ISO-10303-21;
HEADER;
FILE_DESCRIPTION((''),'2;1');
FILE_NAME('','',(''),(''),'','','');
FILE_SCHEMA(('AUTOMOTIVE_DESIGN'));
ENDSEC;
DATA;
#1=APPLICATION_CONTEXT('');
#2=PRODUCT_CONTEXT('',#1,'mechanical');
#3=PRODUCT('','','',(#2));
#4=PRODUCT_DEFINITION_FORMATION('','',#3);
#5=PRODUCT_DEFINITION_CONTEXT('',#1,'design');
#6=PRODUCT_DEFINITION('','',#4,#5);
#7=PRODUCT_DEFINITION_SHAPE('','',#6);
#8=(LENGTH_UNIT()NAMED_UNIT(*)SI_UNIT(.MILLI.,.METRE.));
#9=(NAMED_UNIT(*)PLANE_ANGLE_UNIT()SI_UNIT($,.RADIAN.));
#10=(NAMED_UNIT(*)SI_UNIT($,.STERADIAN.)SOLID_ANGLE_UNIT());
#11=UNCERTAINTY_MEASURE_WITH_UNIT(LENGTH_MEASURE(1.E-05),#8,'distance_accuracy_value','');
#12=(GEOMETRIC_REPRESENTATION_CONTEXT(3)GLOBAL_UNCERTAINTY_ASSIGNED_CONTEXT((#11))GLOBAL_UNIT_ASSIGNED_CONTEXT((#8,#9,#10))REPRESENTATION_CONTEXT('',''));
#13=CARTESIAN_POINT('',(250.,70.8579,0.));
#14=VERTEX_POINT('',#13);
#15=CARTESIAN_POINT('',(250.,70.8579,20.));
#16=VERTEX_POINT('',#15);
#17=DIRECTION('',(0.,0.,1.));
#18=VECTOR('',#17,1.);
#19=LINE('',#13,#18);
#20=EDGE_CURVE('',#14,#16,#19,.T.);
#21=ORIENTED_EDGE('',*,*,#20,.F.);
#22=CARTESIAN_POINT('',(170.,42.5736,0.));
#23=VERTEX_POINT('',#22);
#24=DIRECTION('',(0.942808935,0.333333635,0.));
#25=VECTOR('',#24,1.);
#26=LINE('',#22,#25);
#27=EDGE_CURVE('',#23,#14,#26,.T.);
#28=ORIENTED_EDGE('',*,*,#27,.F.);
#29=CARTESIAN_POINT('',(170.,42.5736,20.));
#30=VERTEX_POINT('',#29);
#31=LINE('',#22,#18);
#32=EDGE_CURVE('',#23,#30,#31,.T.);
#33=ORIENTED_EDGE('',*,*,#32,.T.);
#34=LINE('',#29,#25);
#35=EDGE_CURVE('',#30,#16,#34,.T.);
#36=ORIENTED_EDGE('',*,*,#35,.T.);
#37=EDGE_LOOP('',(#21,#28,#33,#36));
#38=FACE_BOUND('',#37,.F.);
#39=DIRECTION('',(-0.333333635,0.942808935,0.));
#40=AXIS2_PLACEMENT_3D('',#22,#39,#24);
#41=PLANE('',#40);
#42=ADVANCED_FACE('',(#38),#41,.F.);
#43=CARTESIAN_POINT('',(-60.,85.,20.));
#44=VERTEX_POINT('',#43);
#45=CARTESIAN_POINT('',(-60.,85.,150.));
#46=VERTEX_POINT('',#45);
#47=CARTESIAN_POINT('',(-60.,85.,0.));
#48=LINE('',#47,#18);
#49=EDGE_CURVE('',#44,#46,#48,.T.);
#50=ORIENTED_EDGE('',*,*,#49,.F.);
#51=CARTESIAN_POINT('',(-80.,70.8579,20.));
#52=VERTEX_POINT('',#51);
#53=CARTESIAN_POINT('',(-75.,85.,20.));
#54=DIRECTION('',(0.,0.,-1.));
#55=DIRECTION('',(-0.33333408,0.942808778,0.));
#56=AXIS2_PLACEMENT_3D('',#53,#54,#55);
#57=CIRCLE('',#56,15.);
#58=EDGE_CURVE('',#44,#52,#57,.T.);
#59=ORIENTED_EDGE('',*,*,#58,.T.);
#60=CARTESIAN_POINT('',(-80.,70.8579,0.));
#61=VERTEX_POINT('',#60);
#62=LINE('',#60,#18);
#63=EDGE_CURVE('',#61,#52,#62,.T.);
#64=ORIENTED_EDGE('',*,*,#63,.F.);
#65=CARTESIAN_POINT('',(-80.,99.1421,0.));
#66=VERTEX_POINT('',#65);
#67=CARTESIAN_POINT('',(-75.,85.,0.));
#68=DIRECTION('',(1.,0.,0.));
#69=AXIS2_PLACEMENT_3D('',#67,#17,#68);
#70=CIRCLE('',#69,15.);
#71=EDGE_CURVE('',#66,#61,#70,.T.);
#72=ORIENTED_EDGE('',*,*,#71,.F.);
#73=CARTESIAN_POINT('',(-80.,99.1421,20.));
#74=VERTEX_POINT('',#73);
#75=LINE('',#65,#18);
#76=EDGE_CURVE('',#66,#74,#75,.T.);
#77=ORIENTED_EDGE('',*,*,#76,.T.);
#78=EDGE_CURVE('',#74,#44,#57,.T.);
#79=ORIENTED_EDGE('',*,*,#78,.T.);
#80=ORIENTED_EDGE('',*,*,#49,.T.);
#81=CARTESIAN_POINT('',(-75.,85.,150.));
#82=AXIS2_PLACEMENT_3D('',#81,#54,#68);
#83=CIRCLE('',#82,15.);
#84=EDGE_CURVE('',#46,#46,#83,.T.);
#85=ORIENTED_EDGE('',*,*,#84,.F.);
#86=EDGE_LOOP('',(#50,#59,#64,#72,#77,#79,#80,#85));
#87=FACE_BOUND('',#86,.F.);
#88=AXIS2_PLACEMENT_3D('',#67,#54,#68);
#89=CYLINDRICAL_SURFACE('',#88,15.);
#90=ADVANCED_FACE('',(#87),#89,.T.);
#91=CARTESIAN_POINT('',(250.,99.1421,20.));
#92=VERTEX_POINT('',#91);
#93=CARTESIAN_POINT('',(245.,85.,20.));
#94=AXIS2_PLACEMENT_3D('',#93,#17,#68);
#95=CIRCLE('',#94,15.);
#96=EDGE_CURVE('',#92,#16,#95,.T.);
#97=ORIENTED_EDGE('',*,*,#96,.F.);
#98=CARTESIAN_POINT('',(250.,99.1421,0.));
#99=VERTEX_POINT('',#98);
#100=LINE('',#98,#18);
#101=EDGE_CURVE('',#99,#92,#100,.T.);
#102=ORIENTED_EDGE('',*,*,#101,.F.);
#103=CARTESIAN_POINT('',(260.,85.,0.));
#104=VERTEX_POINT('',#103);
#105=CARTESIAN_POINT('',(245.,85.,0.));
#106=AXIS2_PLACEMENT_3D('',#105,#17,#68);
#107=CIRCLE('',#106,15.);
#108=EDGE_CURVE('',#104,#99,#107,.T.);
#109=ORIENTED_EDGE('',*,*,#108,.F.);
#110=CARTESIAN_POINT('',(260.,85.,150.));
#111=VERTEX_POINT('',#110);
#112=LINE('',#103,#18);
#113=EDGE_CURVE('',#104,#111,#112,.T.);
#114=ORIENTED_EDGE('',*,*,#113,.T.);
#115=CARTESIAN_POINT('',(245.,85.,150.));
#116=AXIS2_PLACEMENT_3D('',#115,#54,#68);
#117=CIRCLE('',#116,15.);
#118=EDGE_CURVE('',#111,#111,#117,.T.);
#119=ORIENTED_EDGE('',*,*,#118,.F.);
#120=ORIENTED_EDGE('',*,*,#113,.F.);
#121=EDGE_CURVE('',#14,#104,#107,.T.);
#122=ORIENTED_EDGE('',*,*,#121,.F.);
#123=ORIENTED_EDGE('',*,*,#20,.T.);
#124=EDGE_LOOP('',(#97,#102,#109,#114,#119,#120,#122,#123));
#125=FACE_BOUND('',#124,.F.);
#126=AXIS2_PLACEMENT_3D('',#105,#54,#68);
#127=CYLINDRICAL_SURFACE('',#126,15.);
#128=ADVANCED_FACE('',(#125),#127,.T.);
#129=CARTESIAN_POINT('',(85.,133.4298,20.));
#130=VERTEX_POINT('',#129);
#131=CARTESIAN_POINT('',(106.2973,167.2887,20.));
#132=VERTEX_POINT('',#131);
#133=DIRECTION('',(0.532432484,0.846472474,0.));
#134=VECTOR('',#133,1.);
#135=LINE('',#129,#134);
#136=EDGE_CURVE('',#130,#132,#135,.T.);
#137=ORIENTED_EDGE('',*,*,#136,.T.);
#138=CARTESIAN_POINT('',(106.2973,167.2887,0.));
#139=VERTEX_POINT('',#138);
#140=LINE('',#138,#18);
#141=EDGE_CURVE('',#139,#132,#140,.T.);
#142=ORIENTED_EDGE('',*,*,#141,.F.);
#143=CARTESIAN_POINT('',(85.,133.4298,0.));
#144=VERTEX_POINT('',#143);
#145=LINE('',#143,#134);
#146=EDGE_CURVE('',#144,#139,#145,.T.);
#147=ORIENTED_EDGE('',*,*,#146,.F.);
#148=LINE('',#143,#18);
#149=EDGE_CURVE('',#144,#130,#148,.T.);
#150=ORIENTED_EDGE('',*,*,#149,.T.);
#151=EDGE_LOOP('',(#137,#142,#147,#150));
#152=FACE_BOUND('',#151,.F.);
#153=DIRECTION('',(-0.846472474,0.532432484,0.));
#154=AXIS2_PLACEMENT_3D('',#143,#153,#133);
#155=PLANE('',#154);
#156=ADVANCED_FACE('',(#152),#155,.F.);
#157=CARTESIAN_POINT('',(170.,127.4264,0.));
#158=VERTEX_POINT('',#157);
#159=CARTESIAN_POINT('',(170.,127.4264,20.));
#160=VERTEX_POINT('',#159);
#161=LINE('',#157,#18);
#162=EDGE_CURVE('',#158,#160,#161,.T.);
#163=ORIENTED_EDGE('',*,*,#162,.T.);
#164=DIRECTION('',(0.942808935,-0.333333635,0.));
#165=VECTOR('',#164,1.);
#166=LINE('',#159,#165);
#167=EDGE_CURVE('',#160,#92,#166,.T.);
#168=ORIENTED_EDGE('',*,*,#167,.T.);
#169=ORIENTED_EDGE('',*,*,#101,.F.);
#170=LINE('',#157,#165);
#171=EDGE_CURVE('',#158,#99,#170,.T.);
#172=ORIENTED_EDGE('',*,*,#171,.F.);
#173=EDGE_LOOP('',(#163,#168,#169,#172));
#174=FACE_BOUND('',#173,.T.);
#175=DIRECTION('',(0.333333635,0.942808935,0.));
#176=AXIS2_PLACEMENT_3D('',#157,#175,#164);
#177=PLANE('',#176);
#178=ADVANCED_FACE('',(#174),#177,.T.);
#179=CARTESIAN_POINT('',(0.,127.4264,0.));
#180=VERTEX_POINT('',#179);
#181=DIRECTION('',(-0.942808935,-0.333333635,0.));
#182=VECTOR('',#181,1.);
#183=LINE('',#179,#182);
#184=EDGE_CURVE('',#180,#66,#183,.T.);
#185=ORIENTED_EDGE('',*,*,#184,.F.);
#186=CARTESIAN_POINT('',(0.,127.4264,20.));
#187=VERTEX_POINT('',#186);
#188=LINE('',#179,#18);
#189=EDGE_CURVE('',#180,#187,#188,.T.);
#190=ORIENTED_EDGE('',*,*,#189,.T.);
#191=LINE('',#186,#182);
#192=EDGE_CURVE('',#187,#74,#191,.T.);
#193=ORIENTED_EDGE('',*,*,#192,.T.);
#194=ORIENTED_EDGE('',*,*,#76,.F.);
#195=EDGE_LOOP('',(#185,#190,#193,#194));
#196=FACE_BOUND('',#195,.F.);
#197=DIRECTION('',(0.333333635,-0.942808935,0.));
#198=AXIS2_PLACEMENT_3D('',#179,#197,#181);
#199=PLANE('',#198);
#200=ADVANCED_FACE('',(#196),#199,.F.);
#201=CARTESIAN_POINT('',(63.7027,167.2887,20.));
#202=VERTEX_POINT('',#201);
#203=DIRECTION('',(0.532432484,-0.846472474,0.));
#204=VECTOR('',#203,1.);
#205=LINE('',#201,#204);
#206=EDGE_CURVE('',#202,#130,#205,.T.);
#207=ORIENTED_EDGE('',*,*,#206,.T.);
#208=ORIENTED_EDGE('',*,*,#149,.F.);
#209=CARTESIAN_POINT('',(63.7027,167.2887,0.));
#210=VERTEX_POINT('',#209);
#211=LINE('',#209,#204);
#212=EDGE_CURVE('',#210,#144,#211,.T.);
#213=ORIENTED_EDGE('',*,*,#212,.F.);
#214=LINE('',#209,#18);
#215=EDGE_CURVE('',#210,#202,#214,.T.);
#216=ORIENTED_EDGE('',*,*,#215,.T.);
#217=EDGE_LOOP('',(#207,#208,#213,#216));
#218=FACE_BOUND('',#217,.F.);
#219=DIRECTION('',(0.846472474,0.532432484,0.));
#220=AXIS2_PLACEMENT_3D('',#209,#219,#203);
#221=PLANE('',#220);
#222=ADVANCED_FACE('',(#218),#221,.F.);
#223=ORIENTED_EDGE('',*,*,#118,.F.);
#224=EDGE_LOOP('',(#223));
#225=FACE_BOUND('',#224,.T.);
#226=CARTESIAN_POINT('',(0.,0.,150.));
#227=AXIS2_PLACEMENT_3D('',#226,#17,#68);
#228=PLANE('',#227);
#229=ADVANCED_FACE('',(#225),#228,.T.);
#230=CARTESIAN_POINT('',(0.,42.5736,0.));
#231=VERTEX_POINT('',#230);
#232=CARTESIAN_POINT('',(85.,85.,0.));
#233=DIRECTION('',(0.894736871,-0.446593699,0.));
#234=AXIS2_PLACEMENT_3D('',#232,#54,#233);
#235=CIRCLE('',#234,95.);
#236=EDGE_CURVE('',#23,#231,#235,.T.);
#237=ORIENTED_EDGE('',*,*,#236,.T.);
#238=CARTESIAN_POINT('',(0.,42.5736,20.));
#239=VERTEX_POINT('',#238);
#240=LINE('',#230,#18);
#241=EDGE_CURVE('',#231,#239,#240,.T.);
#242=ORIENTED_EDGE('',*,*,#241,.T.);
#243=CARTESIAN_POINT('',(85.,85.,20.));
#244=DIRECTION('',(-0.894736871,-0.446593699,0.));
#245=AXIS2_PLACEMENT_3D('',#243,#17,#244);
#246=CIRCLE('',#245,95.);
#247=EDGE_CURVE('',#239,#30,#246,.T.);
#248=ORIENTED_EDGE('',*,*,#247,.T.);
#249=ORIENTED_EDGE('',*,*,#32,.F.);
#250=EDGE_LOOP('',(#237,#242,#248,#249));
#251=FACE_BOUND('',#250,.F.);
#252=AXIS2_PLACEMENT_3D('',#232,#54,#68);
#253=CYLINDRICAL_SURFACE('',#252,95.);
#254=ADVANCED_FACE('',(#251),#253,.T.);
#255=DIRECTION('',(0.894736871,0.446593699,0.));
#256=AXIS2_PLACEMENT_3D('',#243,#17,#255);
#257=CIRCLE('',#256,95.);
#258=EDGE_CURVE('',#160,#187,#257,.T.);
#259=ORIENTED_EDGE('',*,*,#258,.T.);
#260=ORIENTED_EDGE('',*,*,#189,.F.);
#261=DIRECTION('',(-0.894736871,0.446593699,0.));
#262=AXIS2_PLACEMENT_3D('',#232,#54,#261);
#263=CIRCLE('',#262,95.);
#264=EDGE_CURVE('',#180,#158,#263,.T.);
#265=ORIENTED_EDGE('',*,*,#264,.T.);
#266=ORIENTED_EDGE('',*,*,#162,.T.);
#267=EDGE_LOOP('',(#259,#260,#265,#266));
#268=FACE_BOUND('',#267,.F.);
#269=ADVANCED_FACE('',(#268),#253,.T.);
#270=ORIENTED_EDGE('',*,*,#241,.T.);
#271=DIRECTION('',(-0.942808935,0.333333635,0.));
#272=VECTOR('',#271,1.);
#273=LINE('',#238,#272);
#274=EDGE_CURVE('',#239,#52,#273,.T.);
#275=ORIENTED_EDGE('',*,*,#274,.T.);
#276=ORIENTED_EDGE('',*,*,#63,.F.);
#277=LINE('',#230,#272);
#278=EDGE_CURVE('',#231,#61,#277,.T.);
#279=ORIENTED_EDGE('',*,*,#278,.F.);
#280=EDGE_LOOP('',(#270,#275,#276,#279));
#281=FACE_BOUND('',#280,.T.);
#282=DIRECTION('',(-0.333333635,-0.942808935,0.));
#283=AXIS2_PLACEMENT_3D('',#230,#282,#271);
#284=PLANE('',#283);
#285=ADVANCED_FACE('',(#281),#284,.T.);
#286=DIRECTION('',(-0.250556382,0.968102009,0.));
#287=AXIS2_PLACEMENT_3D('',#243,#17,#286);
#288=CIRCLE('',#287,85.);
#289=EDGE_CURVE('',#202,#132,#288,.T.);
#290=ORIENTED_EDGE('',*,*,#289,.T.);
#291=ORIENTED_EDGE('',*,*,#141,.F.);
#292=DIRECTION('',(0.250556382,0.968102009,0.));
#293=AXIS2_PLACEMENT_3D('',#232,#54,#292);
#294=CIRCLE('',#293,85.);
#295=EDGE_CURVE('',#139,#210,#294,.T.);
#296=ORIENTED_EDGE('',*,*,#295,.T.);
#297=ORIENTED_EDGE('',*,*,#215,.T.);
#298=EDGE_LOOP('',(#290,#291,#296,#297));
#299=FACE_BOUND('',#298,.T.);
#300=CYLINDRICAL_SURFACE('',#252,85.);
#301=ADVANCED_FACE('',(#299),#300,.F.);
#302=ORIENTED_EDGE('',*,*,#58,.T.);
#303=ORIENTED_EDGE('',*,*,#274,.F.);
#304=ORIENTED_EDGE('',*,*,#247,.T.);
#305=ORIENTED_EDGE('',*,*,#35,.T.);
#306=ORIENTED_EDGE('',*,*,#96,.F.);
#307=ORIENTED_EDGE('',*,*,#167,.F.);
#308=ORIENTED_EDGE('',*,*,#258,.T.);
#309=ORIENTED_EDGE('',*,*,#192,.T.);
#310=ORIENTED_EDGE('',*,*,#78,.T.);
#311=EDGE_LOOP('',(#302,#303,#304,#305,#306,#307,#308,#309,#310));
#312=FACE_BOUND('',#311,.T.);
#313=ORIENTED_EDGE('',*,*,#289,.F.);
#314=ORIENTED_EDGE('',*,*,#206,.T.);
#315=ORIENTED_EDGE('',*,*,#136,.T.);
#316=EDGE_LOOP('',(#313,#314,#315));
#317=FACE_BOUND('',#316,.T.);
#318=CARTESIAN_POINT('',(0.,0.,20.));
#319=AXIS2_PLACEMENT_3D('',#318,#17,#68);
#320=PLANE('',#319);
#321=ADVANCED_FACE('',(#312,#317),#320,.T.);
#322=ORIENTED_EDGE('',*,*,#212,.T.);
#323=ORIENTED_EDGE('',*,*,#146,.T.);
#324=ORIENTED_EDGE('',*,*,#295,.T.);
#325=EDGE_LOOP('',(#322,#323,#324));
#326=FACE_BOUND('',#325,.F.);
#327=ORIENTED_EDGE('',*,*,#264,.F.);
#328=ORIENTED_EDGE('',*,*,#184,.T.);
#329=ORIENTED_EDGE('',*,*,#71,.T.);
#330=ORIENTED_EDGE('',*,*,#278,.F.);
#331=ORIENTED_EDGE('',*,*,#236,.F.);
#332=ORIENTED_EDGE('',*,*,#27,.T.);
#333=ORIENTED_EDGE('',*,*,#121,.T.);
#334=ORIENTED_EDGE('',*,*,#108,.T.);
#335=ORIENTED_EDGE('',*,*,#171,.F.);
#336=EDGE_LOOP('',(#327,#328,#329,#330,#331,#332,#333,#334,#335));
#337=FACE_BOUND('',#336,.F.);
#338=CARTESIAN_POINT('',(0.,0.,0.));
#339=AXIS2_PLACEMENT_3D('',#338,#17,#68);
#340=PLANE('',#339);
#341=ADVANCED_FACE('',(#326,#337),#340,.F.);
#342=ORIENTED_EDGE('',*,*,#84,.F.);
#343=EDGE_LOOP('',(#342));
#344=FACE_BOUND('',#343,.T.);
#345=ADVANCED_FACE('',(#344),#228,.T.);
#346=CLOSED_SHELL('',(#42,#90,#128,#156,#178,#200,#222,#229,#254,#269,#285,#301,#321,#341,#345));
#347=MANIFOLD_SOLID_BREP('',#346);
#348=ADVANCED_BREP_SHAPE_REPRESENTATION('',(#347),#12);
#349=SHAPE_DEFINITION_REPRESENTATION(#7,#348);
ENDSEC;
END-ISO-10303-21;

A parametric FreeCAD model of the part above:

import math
import FreeCAD as App
import Part
import Sketcher
from FreeCAD import Vector
Q = App.Units.Quantity

doc = App.newDocument("Part")
body = doc.addObject("PartDesign::Body", "Body")

# Sketch on XY plane
sketch1 = body.newObject("Sketcher::SketchObject", "Sketch")
sketch1.AttachmentSupport = (doc.getObject("XY_Plane"), [""])
sketch1.MapMode = "FlatFace"
sketch1.addGeometry([
    Part.ArcOfCircle(Part.Circle(Vector(85, 85, 0), Vector(0, 0, 1), 95), math.radians(27), math.radians(153)),  # 0
    Part.LineSegment(Vector(0, 127, 0), Vector(-80, 99, 0)),  # 1
    Part.ArcOfCircle(Part.Circle(Vector(-75, 85, 0), Vector(0, 0, 1), 15), math.radians(-109), math.radians(109)),  # 2
    Part.LineSegment(Vector(-80, 71, 0), Vector(0, 43, 0)),  # 3
    Part.ArcOfCircle(Part.Circle(Vector(85, 85, 0), Vector(0, 0, 1), 95), math.radians(-153), math.radians(-27)),  # 4
    Part.LineSegment(Vector(170, 43, 0), Vector(250, 71, 0)),  # 5
    Part.ArcOfCircle(Part.Circle(Vector(245, 85, 0), Vector(0, 0, 1), 15), math.radians(71), math.radians(289)),  # 6
    Part.LineSegment(Vector(250, 99, 0), Vector(170, 127, 0)),  # 7
    Part.LineSegment(Vector(64, 167, 0), Vector(85, 133, 0)),  # 8
    Part.LineSegment(Vector(85, 133, 0), Vector(106, 167, 0)),  # 9
    Part.ArcOfCircle(Part.Circle(Vector(85, 85, 0), Vector(0, 0, 1), 85), math.radians(105), math.radians(435)),  # 10
], False)
sketch1.addConstraint([
    Sketcher.Constraint("Coincident", 0, 2, 1, 1),
    Sketcher.Constraint("Tangent", 1, 2, 2, 2),
    Sketcher.Constraint("Tangent", 2, 1, 3, 1),
    Sketcher.Constraint("Coincident", 3, 2, 4, 1),
    Sketcher.Constraint("Coincident", 4, 2, 5, 1),
    Sketcher.Constraint("Tangent", 5, 2, 6, 2),
    Sketcher.Constraint("Tangent", 6, 1, 7, 1),
    Sketcher.Constraint("Coincident", 7, 2, 0, 1),
    Sketcher.Constraint("Coincident", 8, 2, 9, 1),
    Sketcher.Constraint("Coincident", 9, 2, 10, 2),
    Sketcher.Constraint("Coincident", 10, 1, 8, 1),
    Sketcher.Constraint("Coincident", 4, 3, 0, 3),
    Sketcher.Constraint("Coincident", 10, 3, 0, 3),
    Sketcher.Constraint("Equal", 0, 4),
    Sketcher.Constraint("Equal", 2, 6),
    Sketcher.Constraint("PointOnObject", 0, 2, -2),
    Sketcher.Constraint("PointOnObject", 3, 2, -2),
    Sketcher.Constraint("Parallel", 1, 5),
    Sketcher.Constraint("Parallel", 3, 7),
    Sketcher.Constraint("Horizontal", 0, 3, 2, 3),
    Sketcher.Constraint("Horizontal", 4, 3, 6, 3),
    Sketcher.Constraint("Horizontal", 3, 2, 4, 2),
    Sketcher.Constraint("Horizontal", 9, 2, 10, 1),
    Sketcher.Constraint("Vertical", 10, 3, 8, 2),
    Sketcher.Constraint("Radius", 2, 15.0),
    Sketcher.Constraint("Radius", 10, 85.0),
    Sketcher.Constraint("Distance", 8, 40.0),
    Sketcher.Constraint("DistanceX", -1, 1, 0, 3, 85.0),
    Sketcher.Constraint("DistanceY", -1, 1, 0, 3, 85.0),
    Sketcher.Constraint("Radius", 0, 95.0),
    Sketcher.Constraint("DistanceX", 2, 3, 0, 3, 160.0),
    Sketcher.Constraint("Angle", 8, Q("-57.83 deg")),
])
pad1 = body.newObject("PartDesign::Pad", "Pad")
pad1.Profile = sketch1
pad1.Length = 20

# Sketch on XY plane
sketch2 = body.newObject("Sketcher::SketchObject", "Sketch001")
sketch2.AttachmentSupport = (doc.getObject("XY_Plane"), [""])
sketch2.MapMode = "FlatFace"
sketch2.addGeometry([
    Part.Circle(Vector(245, 85, 0), Vector(0, 0, 1), 15),
    Part.Circle(Vector(-75, 85, 0), Vector(0, 0, 1), 15),
], False)
sketch2.addConstraint([
    Sketcher.Constraint("Equal", 0, 1),
    Sketcher.Constraint("Horizontal", 0, 3, 1, 3),
    Sketcher.Constraint("Diameter", 0, 30.0),
    Sketcher.Constraint("DistanceY", -1, 1, 0, 3, 85.0),
    Sketcher.Constraint("DistanceX", -1, 1, 0, 3, 245.0),
    Sketcher.Constraint("DistanceX", 1, 3, -1, 1, 75.0),
])
pad2 = body.newObject("PartDesign::Pad", "Pad001")
pad2.Profile = sketch2
pad2.Length = 150

doc.recompute()
